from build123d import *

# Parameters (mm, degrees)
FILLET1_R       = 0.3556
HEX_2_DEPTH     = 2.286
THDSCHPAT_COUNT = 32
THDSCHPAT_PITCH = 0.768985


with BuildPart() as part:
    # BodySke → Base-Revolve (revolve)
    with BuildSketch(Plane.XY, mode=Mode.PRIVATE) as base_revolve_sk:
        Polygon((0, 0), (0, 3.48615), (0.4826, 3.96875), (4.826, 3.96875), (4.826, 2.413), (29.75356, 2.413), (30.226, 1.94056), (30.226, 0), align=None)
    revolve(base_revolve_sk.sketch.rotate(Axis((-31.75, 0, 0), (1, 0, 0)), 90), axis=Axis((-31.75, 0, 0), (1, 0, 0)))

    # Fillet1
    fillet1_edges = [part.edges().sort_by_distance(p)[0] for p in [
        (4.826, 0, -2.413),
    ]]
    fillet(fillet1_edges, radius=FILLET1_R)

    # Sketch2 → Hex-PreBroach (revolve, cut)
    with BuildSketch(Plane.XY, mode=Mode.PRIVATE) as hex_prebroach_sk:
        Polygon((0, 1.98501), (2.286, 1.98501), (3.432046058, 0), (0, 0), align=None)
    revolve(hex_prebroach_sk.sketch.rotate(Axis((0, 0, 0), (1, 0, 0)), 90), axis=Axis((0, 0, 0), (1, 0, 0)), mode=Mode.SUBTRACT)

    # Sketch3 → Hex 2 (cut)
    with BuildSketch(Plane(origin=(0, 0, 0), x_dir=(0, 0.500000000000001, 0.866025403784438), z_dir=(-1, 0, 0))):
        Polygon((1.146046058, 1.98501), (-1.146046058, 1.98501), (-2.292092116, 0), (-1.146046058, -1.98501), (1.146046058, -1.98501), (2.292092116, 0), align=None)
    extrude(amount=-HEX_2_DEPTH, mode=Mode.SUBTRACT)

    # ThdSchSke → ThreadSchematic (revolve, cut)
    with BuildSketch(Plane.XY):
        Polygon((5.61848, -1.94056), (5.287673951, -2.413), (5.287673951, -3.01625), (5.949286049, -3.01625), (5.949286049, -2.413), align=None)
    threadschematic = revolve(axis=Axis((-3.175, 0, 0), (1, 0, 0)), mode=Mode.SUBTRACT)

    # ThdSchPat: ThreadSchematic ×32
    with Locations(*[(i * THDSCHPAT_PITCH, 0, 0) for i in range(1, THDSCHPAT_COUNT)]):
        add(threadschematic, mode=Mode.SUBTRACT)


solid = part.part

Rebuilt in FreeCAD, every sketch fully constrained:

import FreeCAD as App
import Part
import Sketcher
from FreeCAD import Vector
Q = App.Units.Quantity


def edges_at(feature, points):
    """Names of the edges that pass closest to the given points."""
    edges = feature.Shape.Edges
    near = lambda p: min(range(len(edges)), key=lambda i: edges[i].distToShape(Part.Vertex(*p))[0])
    return sorted({f"Edge{near(p) + 1}" for p in points})


def add_polygon(sketch, points):
    """Adds a closed chain of lines whose ends are joined by coincident constraints."""
    first, n = sketch.GeometryCount, len(points)
    for a, b in zip(points, points[1:] + points[:1]):
        sketch.addGeometry(Part.LineSegment(App.Vector(*a, 0), App.Vector(*b, 0)), False)
    for i in range(n):
        sketch.addConstraint(Sketcher.Constraint("Coincident", first + i, 2, first + (i + 1) % n, 1))

doc = App.newDocument("Part")
body = doc.addObject("PartDesign::Body", "Body")

sketch1 = body.newObject("Sketcher::SketchObject", "Sketch")
sketch1.AttachmentSupport = (doc.getObject("XY_Plane"), [""])
sketch1.MapMode = "FlatFace"
add_polygon(sketch1, [(0, 3.48615), (0, 0), (30.226, 0), (30.226, 1.94056), (29.75356, 2.413), (4.826, 2.413), (4.826, 3.96875), (0.4826, 3.96875)])
sketch1.addConstraint([
    Sketcher.Constraint("Vertical", 0),
    Sketcher.Constraint("Horizontal", 1),
    Sketcher.Constraint("Vertical", 2),
    Sketcher.Constraint("Horizontal", 4),
    Sketcher.Constraint("Vertical", 5),
    Sketcher.Constraint("Horizontal", 6),
    Sketcher.Constraint("Coincident", 0, 2, -1, 1),
    Sketcher.Constraint("Perpendicular", 3, 7),
    Sketcher.Constraint("Angle", 3, Q("135 deg")),
    Sketcher.Constraint("DistanceX", 4, 2, 2, 2, Q("1 in")),
    Sketcher.Constraint("DistanceX", 1, 1, 1, 2, Q("1.19 in")),
    Sketcher.Constraint("DistanceX", 6, 2, 6, 1, Q("0.171 in")),
    Sketcher.Constraint("DistanceX", 4, 2, 4, 1, Q("0.9814 in")),
    Sketcher.Constraint("DistanceY", 2, 1, 2, 2, Q("0.0764 in")),
    Sketcher.Constraint("DistanceY", -1, 1, 5, 2, Q("0.15625 in")),
])
revolution = body.newObject("PartDesign::Revolution", "Revolution")
revolution.Profile = sketch1
revolution.ReferenceAxis = (sketch1, ["H_Axis"])
revolution.Angle = 360
doc.recompute()

fillet = body.newObject("PartDesign::Fillet", "Fillet")
fillet.Base = (revolution, edges_at(revolution, [(4.826, 0, -2.413)]))
fillet.Radius = Q("0.014 in")

sketch2 = body.newObject("Sketcher::SketchObject", "Sketch001")
sketch2.AttachmentSupport = (doc.getObject("XY_Plane"), [""])
sketch2.MapMode = "FlatFace"
add_polygon(sketch2, [(2.286, 1.98501), (0, 1.98501), (0, 0), (3.432046, 0)])
sketch2.addConstraint([
    Sketcher.Constraint("Horizontal", 0),
    Sketcher.Constraint("Vertical", 1),
    Sketcher.Constraint("Horizontal", 2),
    Sketcher.Constraint("Coincident", 1, 2, -1, 1),
    Sketcher.Constraint("Angle", 3, Q("120 deg")),
    Sketcher.Constraint("DistanceX", 0, 2, 0, 1, Q("0.09 in")),
    Sketcher.Constraint("DistanceY", 1, 2, 1, 1, 1.98501),
])
groove = body.newObject("PartDesign::Groove", "Groove")
groove.Profile = sketch2
groove.ReferenceAxis = (sketch2, ["H_Axis"])
groove.Angle = 360

sketch3 = body.newObject("Sketcher::SketchObject", "Sketch002")
sketch3.AttachmentSupport = (doc.getObject("YZ_Plane"), [""])
sketch3.MapMode = "FlatFace"
add_polygon(sketch3, [(2.292092, 0), (1.146046, -1.98501), (-1.146046, -1.98501), (-2.292092, 0), (-1.146046, 1.98501), (1.146046, 1.98501)])
sketch3.addConstraint([
    Sketcher.Constraint("Horizontal", 1),
    Sketcher.Constraint("Horizontal", 4),
    Sketcher.Constraint("Symmetric", 0, 2, 3, 2, -1, 1),
    Sketcher.Constraint("Symmetric", 2, 2, 5, 2, -1, 1),
    Sketcher.Constraint("PointOnObject", 2, 2, -1),
    Sketcher.Constraint("Parallel", 2, 5),
    Sketcher.Constraint("Vertical", 1, 2, 3, 2),
    Sketcher.Constraint("Angle", 0, Q("-120 deg")),
    Sketcher.Constraint("DistanceY", 1, 2, 3, 2, Q("0.1563 in")),
    Sketcher.Constraint("DistanceX", 1, 2, 1, 1, 2.292092),
])
pocket1 = body.newObject("PartDesign::Pocket", "Pocket")
pocket1.Profile = sketch3
pocket1.Length = Q("0.09 in")
pocket1.Reversed = True

sketch4 = body.newObject("Sketcher::SketchObject", "Sketch003")
sketch4.AttachmentSupport = (doc.getObject("XY_Plane"), [""])
sketch4.MapMode = "FlatFace"
add_polygon(sketch4, [(5.61848, -1.94056), (5.287674, -2.413), (5.287674, -3.01625), (5.949286, -3.01625), (5.949286, -2.413)])
sketch4.addConstraint([
    Sketcher.Constraint("Vertical", 1),
    Sketcher.Constraint("Horizontal", 2),
    Sketcher.Constraint("Vertical", 3),
    Sketcher.Constraint("Horizontal", 0, 2, 3, 2),
    Sketcher.Constraint("Equal", 0, 4),
    Sketcher.Constraint("Angle", 0, Q("-125 deg")),
    Sketcher.Constraint("DistanceY", 0, 2, -1, 1, Q("0.095 in")),
    Sketcher.Constraint("DistanceX", -1, 1, 4, 2, Q("0.2212 in")),
    Sketcher.Constraint("DistanceY", 4, 2, -1, 1, Q("0.0764 in")),
    Sketcher.Constraint("DistanceY", 1, 2, 1, 1, 0.60325),
])
groove2 = body.newObject("PartDesign::Groove", "Groove001")
groove2.Profile = sketch4
groove2.ReferenceAxis = (sketch4, ["H_Axis"])
groove2.Angle = 360
doc.recompute()

linearpattern = body.newObject("PartDesign::LinearPattern", "LinearPattern")
linearpattern.Originals = [groove2]
linearpattern.Direction = (doc.getObject("X_Axis"), [""])
linearpattern.Mode = "offset"
linearpattern.Offset = 0.768985
linearpattern.Occurrences = 32
body.Tip = linearpattern

doc.recompute()
